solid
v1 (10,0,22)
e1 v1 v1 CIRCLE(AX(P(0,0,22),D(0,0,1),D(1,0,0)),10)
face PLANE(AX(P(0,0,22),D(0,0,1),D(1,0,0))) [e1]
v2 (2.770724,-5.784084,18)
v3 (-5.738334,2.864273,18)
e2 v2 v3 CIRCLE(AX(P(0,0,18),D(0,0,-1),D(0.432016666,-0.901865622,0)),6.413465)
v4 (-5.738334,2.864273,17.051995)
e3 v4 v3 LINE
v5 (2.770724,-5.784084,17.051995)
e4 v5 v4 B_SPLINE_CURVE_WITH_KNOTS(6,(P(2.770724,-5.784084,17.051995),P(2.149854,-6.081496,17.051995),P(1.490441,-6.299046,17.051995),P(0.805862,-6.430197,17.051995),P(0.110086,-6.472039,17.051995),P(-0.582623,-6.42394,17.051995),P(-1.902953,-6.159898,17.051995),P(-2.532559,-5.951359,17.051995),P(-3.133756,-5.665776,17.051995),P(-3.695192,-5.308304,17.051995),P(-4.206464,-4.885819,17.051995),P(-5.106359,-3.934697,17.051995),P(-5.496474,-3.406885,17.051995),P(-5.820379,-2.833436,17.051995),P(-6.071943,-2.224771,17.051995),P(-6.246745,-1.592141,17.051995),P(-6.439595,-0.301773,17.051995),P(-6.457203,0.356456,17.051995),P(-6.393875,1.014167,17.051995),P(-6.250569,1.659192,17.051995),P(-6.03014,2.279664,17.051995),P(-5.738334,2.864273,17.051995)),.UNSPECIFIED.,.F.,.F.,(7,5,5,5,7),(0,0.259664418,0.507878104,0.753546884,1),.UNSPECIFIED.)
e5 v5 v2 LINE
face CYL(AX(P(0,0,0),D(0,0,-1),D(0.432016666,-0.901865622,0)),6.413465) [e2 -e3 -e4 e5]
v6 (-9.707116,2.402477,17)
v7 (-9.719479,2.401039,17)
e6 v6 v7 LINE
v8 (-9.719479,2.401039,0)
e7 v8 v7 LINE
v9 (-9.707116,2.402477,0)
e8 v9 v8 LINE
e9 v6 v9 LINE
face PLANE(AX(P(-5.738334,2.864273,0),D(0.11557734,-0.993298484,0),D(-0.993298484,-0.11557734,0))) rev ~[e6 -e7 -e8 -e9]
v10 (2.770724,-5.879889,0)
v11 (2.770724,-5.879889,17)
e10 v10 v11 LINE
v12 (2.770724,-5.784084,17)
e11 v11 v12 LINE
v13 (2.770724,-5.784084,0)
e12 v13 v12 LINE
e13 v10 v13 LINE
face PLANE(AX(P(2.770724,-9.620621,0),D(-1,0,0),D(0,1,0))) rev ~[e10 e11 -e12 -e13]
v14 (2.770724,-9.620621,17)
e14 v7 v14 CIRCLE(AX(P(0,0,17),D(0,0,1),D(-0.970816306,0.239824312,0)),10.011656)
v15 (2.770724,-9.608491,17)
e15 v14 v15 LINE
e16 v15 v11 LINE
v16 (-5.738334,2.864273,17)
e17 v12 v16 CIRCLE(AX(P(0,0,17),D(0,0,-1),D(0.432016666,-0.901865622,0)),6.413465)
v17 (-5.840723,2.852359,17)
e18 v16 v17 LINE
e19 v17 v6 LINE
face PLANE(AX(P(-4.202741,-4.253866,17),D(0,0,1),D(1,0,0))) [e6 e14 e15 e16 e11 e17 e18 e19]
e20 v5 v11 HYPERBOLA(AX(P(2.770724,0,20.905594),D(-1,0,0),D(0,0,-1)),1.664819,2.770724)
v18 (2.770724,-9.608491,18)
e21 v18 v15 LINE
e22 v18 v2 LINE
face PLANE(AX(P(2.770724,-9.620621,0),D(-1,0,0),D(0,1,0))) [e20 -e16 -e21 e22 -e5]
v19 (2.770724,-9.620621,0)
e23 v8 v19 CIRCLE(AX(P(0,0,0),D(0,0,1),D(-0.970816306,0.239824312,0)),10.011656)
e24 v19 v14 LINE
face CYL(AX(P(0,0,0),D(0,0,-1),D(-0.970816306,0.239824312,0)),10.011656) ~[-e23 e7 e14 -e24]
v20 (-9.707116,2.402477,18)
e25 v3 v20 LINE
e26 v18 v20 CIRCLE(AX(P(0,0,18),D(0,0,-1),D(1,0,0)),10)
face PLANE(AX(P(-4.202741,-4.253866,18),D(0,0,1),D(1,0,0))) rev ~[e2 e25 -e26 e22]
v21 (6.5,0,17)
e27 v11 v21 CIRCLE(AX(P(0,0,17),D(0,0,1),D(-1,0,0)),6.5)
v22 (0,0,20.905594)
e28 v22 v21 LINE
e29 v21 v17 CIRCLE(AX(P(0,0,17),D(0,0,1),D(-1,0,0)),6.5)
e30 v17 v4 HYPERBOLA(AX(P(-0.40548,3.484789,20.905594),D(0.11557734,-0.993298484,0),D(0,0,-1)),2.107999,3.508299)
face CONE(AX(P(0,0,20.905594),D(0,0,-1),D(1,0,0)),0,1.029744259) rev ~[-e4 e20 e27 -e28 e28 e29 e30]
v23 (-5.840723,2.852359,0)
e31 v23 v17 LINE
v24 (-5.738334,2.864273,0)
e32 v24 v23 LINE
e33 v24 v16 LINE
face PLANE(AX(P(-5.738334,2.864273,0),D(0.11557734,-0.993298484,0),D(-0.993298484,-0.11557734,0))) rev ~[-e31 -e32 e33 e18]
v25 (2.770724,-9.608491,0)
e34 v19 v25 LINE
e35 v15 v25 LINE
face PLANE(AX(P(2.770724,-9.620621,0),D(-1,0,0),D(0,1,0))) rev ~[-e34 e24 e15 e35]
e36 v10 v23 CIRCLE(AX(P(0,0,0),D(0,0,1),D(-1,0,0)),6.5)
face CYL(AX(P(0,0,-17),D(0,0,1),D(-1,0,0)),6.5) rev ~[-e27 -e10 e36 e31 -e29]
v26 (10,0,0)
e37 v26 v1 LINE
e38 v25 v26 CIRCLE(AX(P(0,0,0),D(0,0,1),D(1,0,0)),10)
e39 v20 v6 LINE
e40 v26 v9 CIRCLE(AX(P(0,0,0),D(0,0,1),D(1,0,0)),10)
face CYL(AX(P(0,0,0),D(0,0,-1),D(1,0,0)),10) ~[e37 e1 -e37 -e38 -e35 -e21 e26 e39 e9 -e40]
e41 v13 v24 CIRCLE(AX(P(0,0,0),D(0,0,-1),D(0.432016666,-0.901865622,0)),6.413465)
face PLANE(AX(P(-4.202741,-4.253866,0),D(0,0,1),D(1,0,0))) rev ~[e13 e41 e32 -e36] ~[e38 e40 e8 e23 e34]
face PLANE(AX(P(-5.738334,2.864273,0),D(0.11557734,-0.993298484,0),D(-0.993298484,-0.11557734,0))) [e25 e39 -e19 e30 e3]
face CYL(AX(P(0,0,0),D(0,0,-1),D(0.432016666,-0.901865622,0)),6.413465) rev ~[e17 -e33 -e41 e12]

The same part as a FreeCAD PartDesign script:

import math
import FreeCAD as App
import Part
import Sketcher

V = App.Vector
Q = App.Units.Quantity

doc = App.newDocument("Part")
body = doc.addObject("PartDesign::Body", "Body")

# Sketch on XY plane
sketch1 = body.newObject("Sketcher::SketchObject", "Sketch")
sketch1.AttachmentSupport = (doc.getObject("XY_Plane"), [""])
sketch1.MapMode = "FlatFace"
sketch1.addGeometry(Part.Circle(V(0, 0, 0), V(0, 0, 1), 10), False)
sketch1.addConstraint(Sketcher.Constraint("Coincident", 0, 3, -1, 1))
sketch1.addConstraint(Sketcher.Constraint("Diameter", 0, Q("20 mm")))
pad1 = body.newObject("PartDesign::Pad", "Pad")
pad1.Profile = sketch1
pad1.Length = 22

# Sketch on XY plane
sketch2 = body.newObject("Sketcher::SketchObject", "Sketch001")
sketch2.AttachmentSupport = (doc.getObject("XY_Plane"), [""])
sketch2.MapMode = "FlatFace"
sketch2.addGeometry(Part.Circle(V(0, 0, 0), V(0, 0, 1), 6.5), False)
sketch2.addConstraint(Sketcher.Constraint("Coincident", 0, 3, -1, 1))
sketch2.addConstraint(Sketcher.Constraint("Diameter", 0, Q("13 mm")))
doc.recompute()
hole = body.newObject("PartDesign::Hole", "Hole")
hole.Profile = sketch2
hole.ThreadType = "None"
hole.Diameter = 13
hole.DepthType = "Dimension"
hole.Depth = 17
hole.DrillPoint = "Angled"
hole.DrillPointAngle = 118
hole.Reversed = True

# Sketch on XY plane
sketch3 = body.newObject("Sketcher::SketchObject", "Sketch002")
sketch3.AttachmentSupport = (doc.getObject("XY_Plane"), [""])
sketch3.MapMode = "FlatFace"
sketch3.addGeometry(Part.LineSegment(V(2.770724, -9.620621, 0), V(2.770724, -5.784084, 0)), False)
sketch3.addGeometry(Part.ArcOfCircle(Part.Circle(V(0, 0, 0), V(0, 0, 1), 6.413465), math.radians(153.474053), math.radians(295.595611)), False)
sketch3.addGeometry(Part.LineSegment(V(-5.738334, 2.864273, 0), V(-9.719479, 2.401039, 0)), False)
sketch3.addGeometry(Part.ArcOfCircle(Part.Circle(V(0, 0, 0), V(0, 0, 1), 10.011656), math.radians(166.123829), math.radians(286.066318)), False)
sketch3.addConstraint(Sketcher.Constraint("Coincident", 0, 2, 1, 2))
sketch3.addConstraint(Sketcher.Constraint("Coincident", 1, 1, 2, 1))
sketch3.addConstraint(Sketcher.Constraint("Coincident", 2, 2, 3, 1))
sketch3.addConstraint(Sketcher.Constraint("Coincident", 3, 2, 0, 1))
sketch3.addConstraint(Sketcher.Constraint("Vertical", 0))
sketch3.addConstraint(Sketcher.Constraint("Coincident", 1, 3, -1, 1))
sketch3.addConstraint(Sketcher.Constraint("Coincident", 3, 3, -1, 1))
sketch3.addConstraint(Sketcher.Constraint("Radius", 1, Q("6.413465 mm")))
sketch3.addConstraint(Sketcher.Constraint("Radius", 3, Q("10.011656 mm")))
sketch3.addConstraint(Sketcher.Constraint("DistanceY", 0, 1, 0, 2, Q("3.836537 mm")))
sketch3.addConstraint(Sketcher.Constraint("DistanceX", 2, 2, -1, 1, Q("9.719479 mm")))
sketch3.addConstraint(Sketcher.Constraint("Distance", 2, Q("4.008005 mm")))
pocket1 = body.newObject("PartDesign::Pocket", "Pocket")
pocket1.Profile = sketch3
pocket1.Length = 18
pocket1.Reversed = True

# Sketch on XY plane
sketch4 = body.newObject("Sketcher::SketchObject", "Sketch003")
sketch4.AttachmentSupport = (doc.getObject("XY_Plane"), [""])
sketch4.MapMode = "FlatFace"
sketch4.addGeometry(Part.LineSegment(V(2.770724, -9.620621, 0), V(2.770724, -5.784084, 0)), False)
sketch4.addGeometry(Part.ArcOfCircle(Part.Circle(V(0, 0, 0), V(0, 0, 1), 6.413465), math.radians(153.474053), math.radians(295.595611)), False)
sketch4.addGeometry(Part.LineSegment(V(-5.738334, 2.864273, 0), V(-9.719479, 2.401039, 0)), False)
sketch4.addGeometry(Part.ArcOfCircle(Part.Circle(V(0, 0, 0), V(0, 0, 1), 10.011656), math.radians(166.123829), math.radians(286.066318)), False)
sketch4.addConstraint(Sketcher.Constraint("Coincident", 0, 2, 1, 2))
sketch4.addConstraint(Sketcher.Constraint("Coincident", 1, 1, 2, 1))
sketch4.addConstraint(Sketcher.Constraint("Coincident", 2, 2, 3, 1))
sketch4.addConstraint(Sketcher.Constraint("Coincident", 3, 2, 0, 1))
sketch4.addConstraint(Sketcher.Constraint("Vertical", 0))
sketch4.addConstraint(Sketcher.Constraint("Coincident", 1, 3, -1, 1))
sketch4.addConstraint(Sketcher.Constraint("Coincident", 3, 3, -1, 1))
sketch4.addConstraint(Sketcher.Constraint("Radius", 1, Q("6.413465 mm")))
sketch4.addConstraint(Sketcher.Constraint("Radius", 3, Q("10.011656 mm")))
sketch4.addConstraint(Sketcher.Constraint("DistanceY", 0, 1, 0, 2, Q("3.836537 mm")))
sketch4.addConstraint(Sketcher.Constraint("DistanceX", 2, 2, -1, 1, Q("9.719479 mm")))
sketch4.addConstraint(Sketcher.Constraint("Distance", 2, Q("4.008005 mm")))
pad2 = body.newObject("PartDesign::Pad", "Pad001")
pad2.Profile = sketch4
pad2.Length = 17

doc.recompute()
